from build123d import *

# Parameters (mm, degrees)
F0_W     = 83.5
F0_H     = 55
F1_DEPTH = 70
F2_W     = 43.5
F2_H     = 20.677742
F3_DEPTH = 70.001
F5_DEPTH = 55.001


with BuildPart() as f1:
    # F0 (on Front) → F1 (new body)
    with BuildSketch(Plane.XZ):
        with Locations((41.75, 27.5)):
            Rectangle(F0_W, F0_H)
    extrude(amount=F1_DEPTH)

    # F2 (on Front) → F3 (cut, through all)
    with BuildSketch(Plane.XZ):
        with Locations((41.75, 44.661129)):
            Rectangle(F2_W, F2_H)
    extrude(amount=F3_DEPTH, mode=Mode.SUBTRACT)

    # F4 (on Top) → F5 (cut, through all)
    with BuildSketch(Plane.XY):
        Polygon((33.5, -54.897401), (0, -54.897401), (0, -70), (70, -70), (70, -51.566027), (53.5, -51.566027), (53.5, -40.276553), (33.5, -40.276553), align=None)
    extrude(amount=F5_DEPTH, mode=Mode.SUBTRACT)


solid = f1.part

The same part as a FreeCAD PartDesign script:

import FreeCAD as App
import Part
import Sketcher
from FreeCAD import Vector


def add_polygon(sketch, points):
    """Adds a closed chain of lines whose ends are joined by coincident constraints."""
    first, n = sketch.GeometryCount, len(points)
    for a, b in zip(points, points[1:] + points[:1]):
        sketch.addGeometry(Part.LineSegment(App.Vector(*a, 0), App.Vector(*b, 0)), False)
    for i in range(n):
        sketch.addConstraint(Sketcher.Constraint("Coincident", first + i, 2, first + (i + 1) % n, 1))

doc = App.newDocument("Part")
params = doc.addObject("Spreadsheet::Sheet", "Params")
for row, (alias, value) in enumerate([
    ("sketch1_height", "55 mm"),
    ("sketch1_width", "83.5 mm"),
    ("pad1_length", "70 mm"),
    ("sketch2_width", "43.5 mm"),
    ("sketch3_width", "70 mm"),
    ("sketch3_width2", "20 mm"),
    ("sketch3_width3", "33.5 mm"),
], start=1):
    params.set(f"A{row}", alias)
    params.set(f"B{row}", "=" + value)
    params.setAlias(f"B{row}", alias)

body = doc.addObject("PartDesign::Body", "Body")

# Sketch on XZ plane
sketch1 = body.newObject("Sketcher::SketchObject", "Sketch")
sketch1.AttachmentSupport = (doc.getObject("XZ_Plane"), [""])
sketch1.MapMode = "FlatFace"
add_polygon(sketch1, [(0, 55), (0, 0), (83.5, 0), (83.5, 55)])  # lines 0-3
sketch1.addConstraint([
    Sketcher.Constraint("Vertical", 0),
    Sketcher.Constraint("Horizontal", 1),
    Sketcher.Constraint("Vertical", 2),
    Sketcher.Constraint("Horizontal", 3),
    Sketcher.Constraint("Coincident", 0, 2, -1, 1),
    Sketcher.Constraint("DistanceY", 0, 2, 0, 1, 55.0),
    Sketcher.Constraint("DistanceX", 1, 1, 1, 2, 83.5),
])
sketch1.setExpression("Constraints[9]", "Params.sketch1_height")
sketch1.setExpression("Constraints[10]", "Params.sketch1_width")
pad1 = body.newObject("PartDesign::Pad", "Pad")
pad1.Profile = sketch1
pad1.setExpression("Length", "Params.pad1_length")

# Sketch on XZ plane
sketch2 = body.newObject("Sketcher::SketchObject", "Sketch001")
sketch2.AttachmentSupport = (doc.getObject("XZ_Plane"), [""])
sketch2.MapMode = "FlatFace"
add_polygon(sketch2, [(20, 55), (20, 34.322258), (63.5, 34.322258), (63.5, 55)])  # lines 0-3
sketch2.addConstraint([
    Sketcher.Constraint("Vertical", 0),
    Sketcher.Constraint("Horizontal", 1),
    Sketcher.Constraint("Vertical", 2),
    Sketcher.Constraint("Horizontal", 3),
    Sketcher.Constraint("DistanceX", 1, 1, 1, 2, 43.5),
    Sketcher.Constraint("DistanceX", -1, 1, 0, 2, 20.0),
    Sketcher.Constraint("DistanceY", -1, 1, 2, 2, 55.0),
    Sketcher.Constraint("DistanceY", 0, 2, 0, 1, 20.677742),
])
sketch2.setExpression("Constraints[8]", "Params.sketch2_width")
pocket1 = body.newObject("PartDesign::Pocket", "Pocket")
pocket1.Profile = sketch2
pocket1.Type = "ThroughAll"
pocket1.Reversed = True

# Sketch on XY plane
sketch3 = body.newObject("Sketcher::SketchObject", "Sketch002")
sketch3.AttachmentSupport = (doc.getObject("XY_Plane"), [""])
sketch3.MapMode = "FlatFace"
add_polygon(sketch3, [(33.5, -54.897401), (0, -54.897401), (0, -70), (70, -70), (70, -51.566027), (53.5, -51.566027), (53.5, -40.276553), (33.5, -40.276553)])  # lines 0-7
sketch3.addConstraint([
    Sketcher.Constraint("Horizontal", 0),
    Sketcher.Constraint("Vertical", 1),
    Sketcher.Constraint("Horizontal", 2),
    Sketcher.Constraint("Vertical", 3),
    Sketcher.Constraint("Horizontal", 4),
    Sketcher.Constraint("Vertical", 5),
    Sketcher.Constraint("Horizontal", 6),
    Sketcher.Constraint("Vertical", 7),
    Sketcher.Constraint("PointOnObject", 0, 2, -2),
    Sketcher.Constraint("DistanceX", 2, 1, 2, 2, 70.0),
    Sketcher.Constraint("DistanceX", 6, 2, 6, 1, 20.0),
    Sketcher.Constraint("DistanceX", 0, 2, 0, 1, 33.5),
    Sketcher.Constraint("DistanceY", 1, 2, -1, 1, 70.0),
    Sketcher.Constraint("DistanceY", 1, 2, 1, 1, 15.102599),
    Sketcher.Constraint("DistanceY", 7, 2, 7, 1, 14.620848),
    Sketcher.Constraint("DistanceY", 3, 1, 3, 2, 18.433973),
])
sketch3.setExpression("Constraints[17]", "Params.sketch3_width")
sketch3.setExpression("Constraints[18]", "Params.sketch3_width2")
sketch3.setExpression("Constraints[19]", "Params.sketch3_width3")
pocket2 = body.newObject("PartDesign::Pocket", "Pocket001")
pocket2.Profile = sketch3
pocket2.Type = "ThroughAll"
pocket2.Reversed = True

doc.recompute()
